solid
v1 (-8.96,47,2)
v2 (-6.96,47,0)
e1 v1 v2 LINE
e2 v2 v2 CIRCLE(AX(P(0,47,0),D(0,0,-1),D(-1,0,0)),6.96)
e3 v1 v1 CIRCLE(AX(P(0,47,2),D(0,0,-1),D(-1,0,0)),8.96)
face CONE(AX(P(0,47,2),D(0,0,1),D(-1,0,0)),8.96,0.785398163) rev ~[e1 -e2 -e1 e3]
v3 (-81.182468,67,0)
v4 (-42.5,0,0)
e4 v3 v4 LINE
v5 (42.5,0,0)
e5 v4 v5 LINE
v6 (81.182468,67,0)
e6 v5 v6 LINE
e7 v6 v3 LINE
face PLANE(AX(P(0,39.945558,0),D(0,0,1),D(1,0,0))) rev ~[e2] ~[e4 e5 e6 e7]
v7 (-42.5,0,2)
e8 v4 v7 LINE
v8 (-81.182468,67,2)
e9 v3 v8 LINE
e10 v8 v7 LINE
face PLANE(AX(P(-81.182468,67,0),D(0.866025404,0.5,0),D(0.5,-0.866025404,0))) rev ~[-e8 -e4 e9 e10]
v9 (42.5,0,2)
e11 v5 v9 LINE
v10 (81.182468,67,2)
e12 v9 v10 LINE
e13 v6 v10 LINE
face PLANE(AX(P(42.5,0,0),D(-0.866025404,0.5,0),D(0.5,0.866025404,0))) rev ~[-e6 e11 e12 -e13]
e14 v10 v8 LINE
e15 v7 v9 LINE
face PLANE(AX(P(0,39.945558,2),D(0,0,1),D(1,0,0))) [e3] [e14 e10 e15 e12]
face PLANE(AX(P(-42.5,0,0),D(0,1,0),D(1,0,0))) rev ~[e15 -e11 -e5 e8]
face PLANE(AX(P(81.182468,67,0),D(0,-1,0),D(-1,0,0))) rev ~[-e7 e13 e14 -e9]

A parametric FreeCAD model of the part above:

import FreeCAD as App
import Part
import Sketcher
Q = App.Units.Quantity

doc = App.newDocument("Part")
body = doc.addObject("PartDesign::Body", "Body")

sketch1 = body.newObject("Sketcher::SketchObject", "Sketch")
sketch1.AttachmentSupport = (doc.getObject("XY_Plane"), [""])
sketch1.MapMode = "FlatFace"
sketch1.addGeometry([
    Part.LineSegment(App.Vector(-81, 67, 0), App.Vector(-42, 0, 0)),
    Part.LineSegment(App.Vector(-42, 0, 0), App.Vector(42, 0, 0)),
    Part.LineSegment(App.Vector(42, 0, 0), App.Vector(81, 67, 0)),
    Part.LineSegment(App.Vector(81, 67, 0), App.Vector(-81, 67, 0)),
], False)
sketch1.addConstraint([
    Sketcher.Constraint("Coincident", 0, 2, 1, 1),
    Sketcher.Constraint("Coincident", 1, 2, 2, 1),
    Sketcher.Constraint("Coincident", 2, 2, 3, 1),
    Sketcher.Constraint("Coincident", 3, 2, 0, 1),
    Sketcher.Constraint("Horizontal", 1),
    Sketcher.Constraint("Horizontal", 3),
    Sketcher.Constraint("Symmetric", 0, 2, 1, 2, -1, 1),
    Sketcher.Constraint("Equal", 0, 2),
    Sketcher.Constraint("DistanceX", 1, 1, 1, 2, Q("85 mm")),
    Sketcher.Constraint("Angle", 0, Q("-60 deg")),
    Sketcher.Constraint("DistanceY", -1, 1, 2, 2, Q("67 mm")),
])
pad1 = body.newObject("PartDesign::Pad", "Pad")
pad1.Profile = sketch1
pad1.Length = 2

sketch2 = body.newObject("Sketcher::SketchObject", "Sketch001")
sketch2.AttachmentSupport = (doc.getObject("XY_Plane"), [""])
sketch2.MapMode = "FlatFace"
sketch2.AttachmentOffset = App.Placement(App.Vector(0, 0, 2), App.Rotation())
sketch2.addGeometry(Part.Circle(App.Vector(0, 47, 0), App.Vector(0, 0, 1), 4.4), False)
sketch2.addConstraint([
    Sketcher.Constraint("PointOnObject", 0, 3, -2),
    Sketcher.Constraint("Diameter", 0, Q("8.8 mm")),
    Sketcher.Constraint("DistanceY", -1, 1, 0, 3, Q("47 mm")),
])
doc.recompute()
hole = body.newObject("PartDesign::Hole", "Hole")
hole.Profile = sketch2
hole.ThreadType = "None"
hole.Diameter = 8.8
hole.DepthType = "ThroughAll"
hole.HoleCutType = "Countersink"
hole.HoleCutDiameter = 17.92
hole.HoleCutCountersinkAngle = 90

doc.recompute()
